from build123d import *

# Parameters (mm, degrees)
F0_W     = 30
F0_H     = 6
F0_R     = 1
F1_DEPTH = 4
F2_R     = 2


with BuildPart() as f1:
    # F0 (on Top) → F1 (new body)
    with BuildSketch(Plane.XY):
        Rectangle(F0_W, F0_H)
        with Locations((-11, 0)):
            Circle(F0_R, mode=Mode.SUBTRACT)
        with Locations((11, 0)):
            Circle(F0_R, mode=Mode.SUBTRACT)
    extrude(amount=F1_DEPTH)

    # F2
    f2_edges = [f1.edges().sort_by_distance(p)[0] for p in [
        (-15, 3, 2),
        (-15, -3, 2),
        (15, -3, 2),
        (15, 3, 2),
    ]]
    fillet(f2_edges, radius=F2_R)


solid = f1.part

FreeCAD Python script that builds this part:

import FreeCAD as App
import Part
import Sketcher
Q = App.Units.Quantity


def edges_at(feature, points):
    """Names of the edges that pass closest to the given points."""
    edges = feature.Shape.Edges
    near = lambda p: min(range(len(edges)), key=lambda i: edges[i].distToShape(Part.Vertex(*p))[0])
    return sorted({f"Edge{near(p) + 1}" for p in points})


def add_polygon(sketch, points):
    """Adds a closed chain of lines whose ends are joined by coincident constraints."""
    first, n = sketch.GeometryCount, len(points)
    for a, b in zip(points, points[1:] + points[:1]):
        sketch.addGeometry(Part.LineSegment(App.Vector(*a, 0), App.Vector(*b, 0)), False)
    for i in range(n):
        sketch.addConstraint(Sketcher.Constraint("Coincident", first + i, 2, first + (i + 1) % n, 1))

doc = App.newDocument("Part")
body = doc.addObject("PartDesign::Body", "Body")

# Sketch on XY plane
sketch1 = body.newObject("Sketcher::SketchObject", "Sketch")
sketch1.AttachmentSupport = (doc.getObject("XY_Plane"), [""])
sketch1.MapMode = "FlatFace"
add_polygon(sketch1, [(-15, 3), (-15, -3), (15, -3), (15, 3)])  # lines 0-3
sketch1.addGeometry(Part.Circle(App.Vector(-11, 0, 0), App.Vector(0, 0, 1), 1), False)  # 4
sketch1.addGeometry(Part.Circle(App.Vector(11, 0, 0), App.Vector(0, 0, 1), 1), False)  # 5
sketch1.addConstraint(Sketcher.Constraint("Vertical", 0))
sketch1.addConstraint(Sketcher.Constraint("Horizontal", 1))
sketch1.addConstraint(Sketcher.Constraint("Vertical", 2))
sketch1.addConstraint(Sketcher.Constraint("Horizontal", 3))
sketch1.addConstraint(Sketcher.Constraint("Equal", 4, 5))
sketch1.addConstraint(Sketcher.Constraint("Symmetric", 4, 3, 5, 3, -1, 1))
sketch1.addConstraint(Sketcher.Constraint("Symmetric", 0, 2, 2, 2, -1, 1))
sketch1.addConstraint(Sketcher.Constraint("PointOnObject", 4, 3, -1))
sketch1.addConstraint(Sketcher.Constraint("Diameter", 4, Q("2 mm")))
sketch1.addConstraint(Sketcher.Constraint("DistanceX", 1, 1, 1, 2, Q("30 mm")))
sketch1.addConstraint(Sketcher.Constraint("DistanceY", 0, 2, 0, 1, Q("6 mm")))
sketch1.addConstraint(Sketcher.Constraint("DistanceX", 4, 3, -1, 1, Q("11 mm")))
pad1 = body.newObject("PartDesign::Pad", "Pad")
pad1.Profile = sketch1
pad1.Length = 4
doc.recompute()

fillet = body.newObject("PartDesign::Fillet", "Fillet")
fillet.Base = (pad1, edges_at(pad1, [
    (-15, 3, 2),
    (-15, -3, 2),
    (15, -3, 2),
    (15, 3, 2),
]))
fillet.Radius = 2

doc.recompute()
